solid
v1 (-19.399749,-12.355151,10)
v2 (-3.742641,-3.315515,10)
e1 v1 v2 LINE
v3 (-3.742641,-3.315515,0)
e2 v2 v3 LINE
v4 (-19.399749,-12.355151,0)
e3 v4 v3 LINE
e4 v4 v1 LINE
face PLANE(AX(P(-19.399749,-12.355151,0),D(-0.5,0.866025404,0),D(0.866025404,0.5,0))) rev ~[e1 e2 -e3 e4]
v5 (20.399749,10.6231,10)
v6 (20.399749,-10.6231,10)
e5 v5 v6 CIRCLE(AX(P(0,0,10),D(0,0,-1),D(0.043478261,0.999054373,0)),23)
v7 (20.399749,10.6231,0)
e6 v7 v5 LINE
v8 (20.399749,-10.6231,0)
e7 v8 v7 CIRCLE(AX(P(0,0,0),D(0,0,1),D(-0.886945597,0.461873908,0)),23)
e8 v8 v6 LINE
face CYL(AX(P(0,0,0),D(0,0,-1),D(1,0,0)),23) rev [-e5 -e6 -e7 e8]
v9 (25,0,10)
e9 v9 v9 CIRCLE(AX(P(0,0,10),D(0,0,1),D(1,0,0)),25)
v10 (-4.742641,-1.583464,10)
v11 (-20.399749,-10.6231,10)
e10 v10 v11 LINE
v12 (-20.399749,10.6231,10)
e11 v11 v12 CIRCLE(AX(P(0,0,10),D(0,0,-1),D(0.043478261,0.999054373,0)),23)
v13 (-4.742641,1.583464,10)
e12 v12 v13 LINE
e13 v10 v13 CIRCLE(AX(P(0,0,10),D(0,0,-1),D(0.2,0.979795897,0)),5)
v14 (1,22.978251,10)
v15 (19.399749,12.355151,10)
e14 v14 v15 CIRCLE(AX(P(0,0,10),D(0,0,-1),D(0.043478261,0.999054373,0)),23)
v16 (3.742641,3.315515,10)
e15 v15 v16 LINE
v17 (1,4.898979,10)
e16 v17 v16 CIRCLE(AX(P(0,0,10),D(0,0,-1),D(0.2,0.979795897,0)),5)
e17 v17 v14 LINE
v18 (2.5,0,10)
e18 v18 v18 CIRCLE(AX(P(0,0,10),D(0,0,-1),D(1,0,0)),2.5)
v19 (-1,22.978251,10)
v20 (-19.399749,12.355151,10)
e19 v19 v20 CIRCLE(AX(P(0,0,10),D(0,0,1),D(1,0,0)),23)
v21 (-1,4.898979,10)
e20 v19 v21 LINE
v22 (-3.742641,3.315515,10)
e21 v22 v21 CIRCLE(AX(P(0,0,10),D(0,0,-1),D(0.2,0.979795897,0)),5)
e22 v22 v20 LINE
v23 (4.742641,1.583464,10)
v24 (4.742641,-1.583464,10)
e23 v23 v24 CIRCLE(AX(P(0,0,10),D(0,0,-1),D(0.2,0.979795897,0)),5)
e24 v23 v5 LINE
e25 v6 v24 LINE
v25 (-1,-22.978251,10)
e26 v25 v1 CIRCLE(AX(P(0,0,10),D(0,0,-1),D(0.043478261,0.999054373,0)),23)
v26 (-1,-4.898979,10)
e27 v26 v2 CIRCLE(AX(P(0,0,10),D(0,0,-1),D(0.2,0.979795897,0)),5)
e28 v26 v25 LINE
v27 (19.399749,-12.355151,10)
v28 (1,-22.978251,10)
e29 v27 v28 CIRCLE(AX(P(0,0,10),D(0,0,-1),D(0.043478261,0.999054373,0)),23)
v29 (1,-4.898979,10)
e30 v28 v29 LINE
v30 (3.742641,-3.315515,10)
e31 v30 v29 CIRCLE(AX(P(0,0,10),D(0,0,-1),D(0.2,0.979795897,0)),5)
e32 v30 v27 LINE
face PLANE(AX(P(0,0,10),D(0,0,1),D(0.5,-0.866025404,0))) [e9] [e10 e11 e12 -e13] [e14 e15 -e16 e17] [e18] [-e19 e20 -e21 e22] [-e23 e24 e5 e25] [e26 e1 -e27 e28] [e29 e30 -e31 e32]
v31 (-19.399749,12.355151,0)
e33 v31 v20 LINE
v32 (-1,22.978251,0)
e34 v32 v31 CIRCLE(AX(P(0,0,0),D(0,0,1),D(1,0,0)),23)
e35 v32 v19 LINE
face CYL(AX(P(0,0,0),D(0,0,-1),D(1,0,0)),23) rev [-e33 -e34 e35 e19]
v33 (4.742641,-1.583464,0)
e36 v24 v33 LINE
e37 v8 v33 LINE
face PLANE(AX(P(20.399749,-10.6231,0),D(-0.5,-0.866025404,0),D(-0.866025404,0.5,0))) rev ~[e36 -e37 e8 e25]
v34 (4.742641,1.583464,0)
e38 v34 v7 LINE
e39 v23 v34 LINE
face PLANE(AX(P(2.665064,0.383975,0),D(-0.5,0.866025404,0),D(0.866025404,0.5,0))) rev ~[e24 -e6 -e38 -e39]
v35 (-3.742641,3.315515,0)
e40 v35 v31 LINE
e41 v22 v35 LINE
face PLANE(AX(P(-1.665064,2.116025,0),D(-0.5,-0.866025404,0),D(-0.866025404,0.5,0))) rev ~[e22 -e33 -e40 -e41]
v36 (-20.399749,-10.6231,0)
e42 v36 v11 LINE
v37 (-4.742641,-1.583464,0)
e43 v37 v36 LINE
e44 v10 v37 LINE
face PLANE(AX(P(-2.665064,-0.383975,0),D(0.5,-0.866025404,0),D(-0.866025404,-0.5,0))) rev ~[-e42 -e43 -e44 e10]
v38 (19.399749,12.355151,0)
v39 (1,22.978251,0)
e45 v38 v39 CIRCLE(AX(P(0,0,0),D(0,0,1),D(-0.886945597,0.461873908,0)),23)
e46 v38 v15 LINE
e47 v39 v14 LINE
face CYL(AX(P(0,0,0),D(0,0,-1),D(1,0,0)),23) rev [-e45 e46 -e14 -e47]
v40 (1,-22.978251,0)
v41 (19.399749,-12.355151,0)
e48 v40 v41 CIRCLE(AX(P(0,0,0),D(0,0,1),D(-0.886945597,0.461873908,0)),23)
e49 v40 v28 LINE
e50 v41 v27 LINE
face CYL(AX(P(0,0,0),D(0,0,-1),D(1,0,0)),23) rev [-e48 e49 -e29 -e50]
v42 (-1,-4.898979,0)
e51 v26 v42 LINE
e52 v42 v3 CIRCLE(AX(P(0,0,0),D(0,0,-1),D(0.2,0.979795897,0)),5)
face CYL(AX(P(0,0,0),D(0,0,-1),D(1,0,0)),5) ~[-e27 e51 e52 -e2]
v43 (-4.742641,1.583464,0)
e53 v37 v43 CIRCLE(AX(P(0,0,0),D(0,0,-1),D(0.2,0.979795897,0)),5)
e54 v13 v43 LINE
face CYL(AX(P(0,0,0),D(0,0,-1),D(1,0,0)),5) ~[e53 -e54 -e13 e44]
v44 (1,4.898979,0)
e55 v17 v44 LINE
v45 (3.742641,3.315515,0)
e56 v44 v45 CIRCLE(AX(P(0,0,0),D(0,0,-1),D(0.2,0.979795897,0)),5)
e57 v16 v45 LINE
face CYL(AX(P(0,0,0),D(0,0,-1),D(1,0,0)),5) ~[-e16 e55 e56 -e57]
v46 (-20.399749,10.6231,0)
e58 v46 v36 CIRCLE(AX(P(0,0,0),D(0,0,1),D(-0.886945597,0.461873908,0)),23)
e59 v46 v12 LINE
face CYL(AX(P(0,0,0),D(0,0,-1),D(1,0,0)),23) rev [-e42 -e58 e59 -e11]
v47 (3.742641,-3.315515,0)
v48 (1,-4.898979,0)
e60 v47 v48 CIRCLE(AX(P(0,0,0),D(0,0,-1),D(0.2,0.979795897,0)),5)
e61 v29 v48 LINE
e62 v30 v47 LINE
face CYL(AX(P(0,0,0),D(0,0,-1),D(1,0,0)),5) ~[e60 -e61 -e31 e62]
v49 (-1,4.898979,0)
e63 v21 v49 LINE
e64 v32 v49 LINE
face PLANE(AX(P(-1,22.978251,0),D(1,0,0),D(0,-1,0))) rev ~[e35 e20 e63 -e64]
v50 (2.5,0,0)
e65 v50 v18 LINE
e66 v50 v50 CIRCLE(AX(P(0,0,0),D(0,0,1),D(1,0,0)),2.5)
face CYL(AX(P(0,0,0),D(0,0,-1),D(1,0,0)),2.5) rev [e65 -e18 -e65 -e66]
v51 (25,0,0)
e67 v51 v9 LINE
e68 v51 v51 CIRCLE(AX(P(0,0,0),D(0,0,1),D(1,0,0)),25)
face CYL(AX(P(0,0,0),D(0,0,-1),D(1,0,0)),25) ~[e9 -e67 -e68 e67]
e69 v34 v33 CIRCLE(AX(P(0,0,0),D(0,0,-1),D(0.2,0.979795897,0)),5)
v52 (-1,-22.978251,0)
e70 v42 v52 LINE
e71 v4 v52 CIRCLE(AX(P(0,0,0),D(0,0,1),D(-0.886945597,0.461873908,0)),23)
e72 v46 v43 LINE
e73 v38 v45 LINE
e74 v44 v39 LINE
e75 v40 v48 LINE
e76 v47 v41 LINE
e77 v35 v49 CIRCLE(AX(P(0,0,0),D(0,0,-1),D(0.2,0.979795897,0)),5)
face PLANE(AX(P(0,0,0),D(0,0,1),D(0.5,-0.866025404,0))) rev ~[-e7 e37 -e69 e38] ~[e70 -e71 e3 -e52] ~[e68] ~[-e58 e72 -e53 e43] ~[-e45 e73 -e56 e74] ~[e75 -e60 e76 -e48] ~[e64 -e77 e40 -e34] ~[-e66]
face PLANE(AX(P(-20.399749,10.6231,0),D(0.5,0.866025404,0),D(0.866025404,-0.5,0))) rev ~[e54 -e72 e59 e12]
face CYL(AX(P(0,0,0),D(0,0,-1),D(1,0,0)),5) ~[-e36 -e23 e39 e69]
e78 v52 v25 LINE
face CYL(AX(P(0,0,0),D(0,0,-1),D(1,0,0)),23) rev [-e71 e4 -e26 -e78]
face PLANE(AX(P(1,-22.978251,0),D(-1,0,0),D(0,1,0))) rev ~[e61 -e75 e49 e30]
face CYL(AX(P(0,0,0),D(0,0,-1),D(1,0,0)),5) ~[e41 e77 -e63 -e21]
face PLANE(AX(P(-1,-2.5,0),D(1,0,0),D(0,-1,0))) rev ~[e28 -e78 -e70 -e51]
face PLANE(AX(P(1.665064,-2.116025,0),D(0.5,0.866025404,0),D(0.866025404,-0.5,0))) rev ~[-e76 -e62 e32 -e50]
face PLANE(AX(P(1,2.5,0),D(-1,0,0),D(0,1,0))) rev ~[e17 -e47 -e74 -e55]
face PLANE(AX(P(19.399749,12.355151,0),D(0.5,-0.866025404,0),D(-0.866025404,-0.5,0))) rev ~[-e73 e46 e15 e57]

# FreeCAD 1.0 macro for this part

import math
import FreeCAD as App
import Part
import Sketcher
from FreeCAD import Vector
Q = App.Units.Quantity

doc = App.newDocument("Part")
body = doc.addObject("PartDesign::Body", "Body")
body.AllowCompound = True

# Sketch on XY plane
sketch1 = body.newObject("Sketcher::SketchObject", "Sketch")
sketch1.AttachmentSupport = (doc.getObject("XY_Plane"), [""])
sketch1.MapMode = "FlatFace"
sketch1.addGeometry([
    Part.Circle(Vector(0, 0, 0), Vector(0, 0, 1), 25),
    Part.Circle(Vector(0, 0, 0), Vector(0, 0, 1), 23),
    Part.Circle(Vector(0, 0, 0), Vector(0, 0, 1), 5),
    Part.Circle(Vector(0, 0, 0), Vector(0, 0, 1), 2.5),
], False)
sketch1.addConstraint([
    Sketcher.Constraint("Coincident", 0, 3, -1, 1),
    Sketcher.Constraint("Coincident", 1, 3, -1, 1),
    Sketcher.Constraint("Coincident", 2, 3, -1, 1),
    Sketcher.Constraint("Coincident", 3, 3, -1, 1),
    Sketcher.Constraint("Diameter", 0, Q("50 mm")),
    Sketcher.Constraint("Diameter", 2, Q("10 mm")),
    Sketcher.Constraint("Diameter", 3, Q("5 mm")),
    Sketcher.Constraint("Diameter", 1, Q("46 mm")),
])
pad1 = body.newObject("PartDesign::Pad", "Pad")
pad1.Profile = sketch1
pad1.Length = 10

# Sketch on XY plane
sketch2 = body.newObject("Sketcher::SketchObject", "Sketch001")
sketch2.AttachmentSupport = (doc.getObject("XY_Plane"), [""])
sketch2.MapMode = "FlatFace"
sketch2.addGeometry([
    Part.LineSegment(Vector(-1, 23, 0), Vector(-1, 2.5, 0)),
    Part.LineSegment(Vector(-1, 2.5, 0), Vector(1, 2.5, 0)),
    Part.LineSegment(Vector(1, 2.5, 0), Vector(1, 23, 0)),
    Part.ArcOfCircle(Part.Circle(Vector(0, 0, 0), Vector(0, 0, 1), 23), math.radians(87.51), math.radians(92.49)),
], False)
sketch2.addConstraint([
    Sketcher.Constraint("Coincident", 0, 2, 1, 1),
    Sketcher.Constraint("Coincident", 1, 2, 2, 1),
    Sketcher.Constraint("Coincident", 2, 2, 3, 1),
    Sketcher.Constraint("Coincident", 3, 2, 0, 1),
    Sketcher.Constraint("Vertical", 0),
    Sketcher.Constraint("Horizontal", 1),
    Sketcher.Constraint("Vertical", 2),
    Sketcher.Constraint("Coincident", 3, 3, -1, 1),
    Sketcher.Constraint("Horizontal", 2, 2, 3, 2),
    Sketcher.Constraint("DistanceX", 1, 1, 1, 2, Q("2 mm")),
    Sketcher.Constraint("Radius", 3, Q("23 mm")),
    Sketcher.Constraint("DistanceY", -1, 1, 0, 2, Q("2.5 mm")),
])
pad2 = body.newObject("PartDesign::Pad", "Pad001")
pad2.Profile = sketch2
pad2.Length = 10
doc.recompute()

polarpattern = body.newObject("PartDesign::PolarPattern", "PolarPattern")
polarpattern.Originals = [pad2]
polarpattern.Axis = (doc.getObject("Z_Axis"), [""])
polarpattern.Angle = 360
polarpattern.Occurrences = 6
body.Tip = polarpattern

doc.recompute()
